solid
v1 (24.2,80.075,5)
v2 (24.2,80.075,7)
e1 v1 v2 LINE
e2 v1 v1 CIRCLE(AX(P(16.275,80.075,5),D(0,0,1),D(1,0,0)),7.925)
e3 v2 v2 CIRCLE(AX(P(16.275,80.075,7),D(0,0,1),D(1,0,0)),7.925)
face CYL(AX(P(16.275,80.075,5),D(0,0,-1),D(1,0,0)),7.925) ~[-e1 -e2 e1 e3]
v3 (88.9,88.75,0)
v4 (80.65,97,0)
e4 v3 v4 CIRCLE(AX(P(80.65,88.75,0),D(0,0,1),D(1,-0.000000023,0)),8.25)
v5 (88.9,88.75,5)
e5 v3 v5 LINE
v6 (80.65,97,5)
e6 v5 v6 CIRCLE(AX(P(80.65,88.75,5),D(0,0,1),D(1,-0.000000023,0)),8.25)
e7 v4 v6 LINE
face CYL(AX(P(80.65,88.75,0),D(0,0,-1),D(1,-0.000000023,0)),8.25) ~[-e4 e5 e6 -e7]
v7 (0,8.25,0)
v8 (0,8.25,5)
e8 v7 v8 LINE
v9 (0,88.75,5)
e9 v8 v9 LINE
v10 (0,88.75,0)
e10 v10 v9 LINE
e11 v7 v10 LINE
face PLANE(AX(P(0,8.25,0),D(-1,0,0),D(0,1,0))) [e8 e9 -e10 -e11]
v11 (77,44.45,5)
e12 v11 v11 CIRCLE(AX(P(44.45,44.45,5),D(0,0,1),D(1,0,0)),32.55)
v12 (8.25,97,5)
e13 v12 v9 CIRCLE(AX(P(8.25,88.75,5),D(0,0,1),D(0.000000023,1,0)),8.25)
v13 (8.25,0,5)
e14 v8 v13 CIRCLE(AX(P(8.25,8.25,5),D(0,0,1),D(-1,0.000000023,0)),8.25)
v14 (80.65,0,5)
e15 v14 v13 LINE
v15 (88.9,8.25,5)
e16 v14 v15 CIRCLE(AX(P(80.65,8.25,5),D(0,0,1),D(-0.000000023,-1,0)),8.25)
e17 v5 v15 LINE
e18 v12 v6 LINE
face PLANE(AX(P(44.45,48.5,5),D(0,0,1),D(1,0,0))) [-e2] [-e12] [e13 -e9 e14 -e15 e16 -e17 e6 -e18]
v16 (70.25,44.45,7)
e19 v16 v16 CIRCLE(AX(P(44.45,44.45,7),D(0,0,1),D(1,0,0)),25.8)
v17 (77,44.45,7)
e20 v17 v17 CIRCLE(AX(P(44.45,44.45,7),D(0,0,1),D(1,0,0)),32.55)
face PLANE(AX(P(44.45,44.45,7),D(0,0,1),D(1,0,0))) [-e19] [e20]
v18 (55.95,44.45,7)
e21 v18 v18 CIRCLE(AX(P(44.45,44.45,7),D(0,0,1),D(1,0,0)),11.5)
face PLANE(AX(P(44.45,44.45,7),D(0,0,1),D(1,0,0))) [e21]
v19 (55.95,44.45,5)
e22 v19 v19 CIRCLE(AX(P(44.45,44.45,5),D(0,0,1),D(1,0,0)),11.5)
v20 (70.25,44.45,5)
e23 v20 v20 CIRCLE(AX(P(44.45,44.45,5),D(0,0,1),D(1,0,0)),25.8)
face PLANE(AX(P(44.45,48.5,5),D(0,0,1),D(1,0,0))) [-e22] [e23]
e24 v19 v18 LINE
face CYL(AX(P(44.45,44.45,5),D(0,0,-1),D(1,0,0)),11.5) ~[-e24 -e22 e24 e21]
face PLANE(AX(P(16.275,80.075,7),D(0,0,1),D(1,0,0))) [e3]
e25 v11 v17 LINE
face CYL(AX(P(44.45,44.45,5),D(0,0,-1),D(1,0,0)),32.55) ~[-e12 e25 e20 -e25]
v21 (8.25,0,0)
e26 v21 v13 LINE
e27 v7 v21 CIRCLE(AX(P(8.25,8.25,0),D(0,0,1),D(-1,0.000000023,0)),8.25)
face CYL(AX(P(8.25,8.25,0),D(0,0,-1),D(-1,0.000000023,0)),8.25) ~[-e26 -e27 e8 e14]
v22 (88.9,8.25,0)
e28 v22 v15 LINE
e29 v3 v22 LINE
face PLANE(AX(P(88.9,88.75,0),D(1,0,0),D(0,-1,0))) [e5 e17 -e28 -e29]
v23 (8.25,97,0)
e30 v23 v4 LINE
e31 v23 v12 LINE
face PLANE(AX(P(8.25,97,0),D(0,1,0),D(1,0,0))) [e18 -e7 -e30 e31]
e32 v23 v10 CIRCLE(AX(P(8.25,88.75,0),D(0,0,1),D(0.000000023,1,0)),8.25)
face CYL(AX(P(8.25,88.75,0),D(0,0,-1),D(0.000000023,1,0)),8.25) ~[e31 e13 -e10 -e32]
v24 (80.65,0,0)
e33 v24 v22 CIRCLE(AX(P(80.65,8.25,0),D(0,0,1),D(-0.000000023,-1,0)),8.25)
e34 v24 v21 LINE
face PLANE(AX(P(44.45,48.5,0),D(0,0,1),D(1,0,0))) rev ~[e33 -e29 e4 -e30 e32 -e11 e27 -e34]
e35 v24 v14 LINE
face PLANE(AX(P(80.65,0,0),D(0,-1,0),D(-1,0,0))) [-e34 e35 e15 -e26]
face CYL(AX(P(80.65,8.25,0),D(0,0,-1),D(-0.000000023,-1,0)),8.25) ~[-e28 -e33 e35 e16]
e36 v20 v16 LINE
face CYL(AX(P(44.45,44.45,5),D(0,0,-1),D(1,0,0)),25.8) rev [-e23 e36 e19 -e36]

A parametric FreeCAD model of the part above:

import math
import FreeCAD as App
import Part
import Sketcher

V = App.Vector

doc = App.newDocument("Part")
body = doc.addObject("PartDesign::Body", "Body")

# Sketch on XY plane
sketch1 = doc.addObject("Sketcher::SketchObject", "Sketch")
body.addObject(sketch1)
sketch1.AttachmentSupport = (doc.XY_Plane, [""])
sketch1.MapMode = "FlatFace"
sketch1.addGeometry([
    Part.ArcOfCircle(Part.Circle(V(8, 8, 0), V(0, 0, 1), 8), math.radians(180), math.radians(270)),  # 0
    Part.LineSegment(V(8, 0, 0), V(81, 0, 0)),  # 1
    Part.ArcOfCircle(Part.Circle(V(81, 8, 0), V(0, 0, 1), 8), math.radians(-90), math.radians(0)),  # 2
    Part.LineSegment(V(89, 8, 0), V(89, 89, 0)),  # 3
    Part.ArcOfCircle(Part.Circle(V(81, 89, 0), V(0, 0, 1), 8), math.radians(0), math.radians(90)),  # 4
    Part.LineSegment(V(81, 97, 0), V(8, 97, 0)),  # 5
    Part.ArcOfCircle(Part.Circle(V(8, 89, 0), V(0, 0, 1), 8), math.radians(90), math.radians(180)),  # 6
    Part.LineSegment(V(0, 89, 0), V(0, 8, 0)),  # 7
], False)
sketch1.addConstraint([
    Sketcher.Constraint("Tangent", 0, 2, 1, 1),
    Sketcher.Constraint("Tangent", 1, 2, 2, 1),
    Sketcher.Constraint("Tangent", 2, 2, 3, 1),
    Sketcher.Constraint("Tangent", 3, 2, 4, 1),
    Sketcher.Constraint("Tangent", 4, 2, 5, 1),
    Sketcher.Constraint("Tangent", 5, 2, 6, 1),
    Sketcher.Constraint("Tangent", 6, 2, 7, 1),
    Sketcher.Constraint("Tangent", 7, 2, 0, 1),
    Sketcher.Constraint("Horizontal", 1),
    Sketcher.Constraint("Vertical", 3),
    Sketcher.Constraint("Horizontal", 5),
    Sketcher.Constraint("Vertical", 7),
    Sketcher.Constraint("Equal", 0, 2),
    Sketcher.Constraint("Equal", 2, 4),
    Sketcher.Constraint("Equal", 4, 6),
    Sketcher.Constraint("PointOnObject", 0, 2, -1),
    Sketcher.Constraint("PointOnObject", 6, 2, -2),
    Sketcher.Constraint("Radius", 0, 8.25),
    Sketcher.Constraint("DistanceX", 1, 1, 1, 2, 72.4),
    Sketcher.Constraint("DistanceY", 3, 1, 3, 2, 80.5),
])
pad1 = doc.addObject("PartDesign::Pad", "Pad")
body.addObject(pad1)
pad1.Profile = sketch1
pad1.Length = 5

# Sketch on XY plane
sketch2 = doc.addObject("Sketcher::SketchObject", "Sketch001")
body.addObject(sketch2)
sketch2.AttachmentSupport = (doc.XY_Plane, [""])
sketch2.MapMode = "FlatFace"
sketch2.AttachmentOffset = App.Placement(V(0, 0, 5), App.Rotation())
sketch2.addGeometry([
    Part.Circle(V(16, 80, 0), V(0, 0, 1), 8),
    Part.Circle(V(44, 44, 0), V(0, 0, 1), 33),
    Part.Circle(V(44, 44, 0), V(0, 0, 1), 26),
    Part.Circle(V(44, 44, 0), V(0, 0, 1), 12),
], False)
sketch2.addConstraint([
    Sketcher.Constraint("Coincident", 2, 3, 1, 3),
    Sketcher.Constraint("Coincident", 3, 3, 1, 3),
    Sketcher.Constraint("Diameter", 3, 23.0),
    Sketcher.Constraint("Diameter", 1, 65.1),
    Sketcher.Constraint("Diameter", 2, 51.6),
    Sketcher.Constraint("Diameter", 0, 15.85),
    Sketcher.Constraint("DistanceX", -1, 1, 1, 3, 44.45),
    Sketcher.Constraint("DistanceY", -1, 1, 1, 3, 44.45),
    Sketcher.Constraint("DistanceX", -1, 1, 0, 3, 16.275),
    Sketcher.Constraint("DistanceY", -1, 1, 0, 3, 80.075),
])
pad2 = doc.addObject("PartDesign::Pad", "Pad001")
body.addObject(pad2)
pad2.Profile = sketch2
pad2.Length = 2

doc.recompute()
